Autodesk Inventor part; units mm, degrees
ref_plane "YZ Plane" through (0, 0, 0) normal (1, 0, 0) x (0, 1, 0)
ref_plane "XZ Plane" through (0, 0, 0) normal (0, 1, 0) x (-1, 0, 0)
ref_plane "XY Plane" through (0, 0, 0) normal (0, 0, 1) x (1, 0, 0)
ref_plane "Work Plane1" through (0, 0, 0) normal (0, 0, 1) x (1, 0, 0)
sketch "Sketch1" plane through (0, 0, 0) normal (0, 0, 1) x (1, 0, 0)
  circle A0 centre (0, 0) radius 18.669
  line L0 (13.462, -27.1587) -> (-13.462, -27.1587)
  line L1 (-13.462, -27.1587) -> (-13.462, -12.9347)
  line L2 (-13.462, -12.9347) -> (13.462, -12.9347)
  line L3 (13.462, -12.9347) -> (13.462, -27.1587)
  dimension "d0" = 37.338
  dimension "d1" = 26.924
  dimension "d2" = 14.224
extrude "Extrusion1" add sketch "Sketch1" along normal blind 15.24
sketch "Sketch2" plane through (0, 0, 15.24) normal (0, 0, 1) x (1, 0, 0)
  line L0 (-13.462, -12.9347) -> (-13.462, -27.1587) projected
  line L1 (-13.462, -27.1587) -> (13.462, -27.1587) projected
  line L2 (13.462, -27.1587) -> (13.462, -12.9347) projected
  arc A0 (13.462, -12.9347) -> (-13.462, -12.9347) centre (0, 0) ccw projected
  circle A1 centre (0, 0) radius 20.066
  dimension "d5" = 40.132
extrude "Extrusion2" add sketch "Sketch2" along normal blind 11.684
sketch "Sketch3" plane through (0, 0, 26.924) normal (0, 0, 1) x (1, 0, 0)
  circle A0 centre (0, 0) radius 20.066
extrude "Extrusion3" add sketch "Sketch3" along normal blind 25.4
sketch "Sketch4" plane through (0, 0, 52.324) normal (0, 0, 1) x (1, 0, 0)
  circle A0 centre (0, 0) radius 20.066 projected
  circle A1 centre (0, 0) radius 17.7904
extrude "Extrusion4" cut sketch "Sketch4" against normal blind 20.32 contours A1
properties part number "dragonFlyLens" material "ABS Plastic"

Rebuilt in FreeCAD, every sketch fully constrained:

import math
import FreeCAD as App
import Part
import Sketcher
Q = App.Units.Quantity

doc = App.newDocument("Part")
body = doc.addObject("PartDesign::Body", "Body")

# Sketch on XY plane
sketch1 = body.newObject("Sketcher::SketchObject", "Sketch")
sketch1.AttachmentSupport = (doc.getObject("XY_Plane"), [""])
sketch1.MapMode = "FlatFace"
sketch1.addGeometry(Part.ArcOfCircle(Part.Circle(App.Vector(0, 0, 0), App.Vector(0, 0, 1), 19), math.radians(-44), math.radians(224)), False)
sketch1.addGeometry(Part.LineSegment(App.Vector(-13, -13, 0), App.Vector(-13, -27, 0)), False)
sketch1.addGeometry(Part.LineSegment(App.Vector(-13, -27, 0), App.Vector(13, -27, 0)), False)
sketch1.addGeometry(Part.LineSegment(App.Vector(13, -27, 0), App.Vector(13, -13, 0)), False)
sketch1.addConstraint(Sketcher.Constraint("Coincident", 0, 2, 1, 1))
sketch1.addConstraint(Sketcher.Constraint("Coincident", 1, 2, 2, 1))
sketch1.addConstraint(Sketcher.Constraint("Coincident", 2, 2, 3, 1))
sketch1.addConstraint(Sketcher.Constraint("Coincident", 3, 2, 0, 1))
sketch1.addConstraint(Sketcher.Constraint("Vertical", 1))
sketch1.addConstraint(Sketcher.Constraint("Horizontal", 2))
sketch1.addConstraint(Sketcher.Constraint("Vertical", 3))
sketch1.addConstraint(Sketcher.Constraint("Coincident", 0, 3, -1, 1))
sketch1.addConstraint(Sketcher.Constraint("Horizontal", 0, 2, 3, 2))
sketch1.addConstraint(Sketcher.Constraint("Radius", 0, Q("0.735 in")))
sketch1.addConstraint(Sketcher.Constraint("DistanceX", 2, 1, 2, 2, Q("1.06 in")))
sketch1.addConstraint(Sketcher.Constraint("DistanceY", 1, 2, 1, 1, Q("0.56 in")))
pad1 = body.newObject("PartDesign::Pad", "Pad")
pad1.Profile = sketch1
pad1.Length = Q("0.6 in")

# Sketch on XY plane
sketch2 = body.newObject("Sketcher::SketchObject", "Sketch001")
sketch2.AttachmentSupport = (doc.getObject("XY_Plane"), [""])
sketch2.MapMode = "FlatFace"
sketch2.AttachmentOffset = App.Placement(App.Vector(0, 0, 0.6 * 25.4), App.Rotation())
sketch2.addGeometry(Part.ArcOfCircle(Part.Circle(App.Vector(0, 0, 0), App.Vector(0, 0, 1), 20), math.radians(-48), math.radians(228)), False)
sketch2.addGeometry(Part.LineSegment(App.Vector(-13, -15, 0), App.Vector(-13, -27, 0)), False)
sketch2.addGeometry(Part.LineSegment(App.Vector(-13, -27, 0), App.Vector(13, -27, 0)), False)
sketch2.addGeometry(Part.LineSegment(App.Vector(13, -27, 0), App.Vector(13, -15, 0)), False)
sketch2.addConstraint(Sketcher.Constraint("Coincident", 0, 2, 1, 1))
sketch2.addConstraint(Sketcher.Constraint("Coincident", 1, 2, 2, 1))
sketch2.addConstraint(Sketcher.Constraint("Coincident", 2, 2, 3, 1))
sketch2.addConstraint(Sketcher.Constraint("Coincident", 3, 2, 0, 1))
sketch2.addConstraint(Sketcher.Constraint("Vertical", 1))
sketch2.addConstraint(Sketcher.Constraint("Horizontal", 2))
sketch2.addConstraint(Sketcher.Constraint("Vertical", 3))
sketch2.addConstraint(Sketcher.Constraint("Coincident", 0, 3, -1, 1))
sketch2.addConstraint(Sketcher.Constraint("Horizontal", 0, 2, 3, 2))
sketch2.addConstraint(Sketcher.Constraint("Radius", 0, Q("0.79 in")))
sketch2.addConstraint(Sketcher.Constraint("DistanceX", 2, 1, 2, 2, Q("1.06 in")))
sketch2.addConstraint(Sketcher.Constraint("DistanceY", 1, 2, 1, 1, Q("0.4834 in")))
pad2 = body.newObject("PartDesign::Pad", "Pad001")
pad2.Profile = sketch2
pad2.Length = Q("0.46 in")

# Sketch on XY plane
sketch3 = body.newObject("Sketcher::SketchObject", "Sketch002")
sketch3.AttachmentSupport = (doc.getObject("XY_Plane"), [""])
sketch3.MapMode = "FlatFace"
sketch3.AttachmentOffset = App.Placement(App.Vector(0, 0, 1.06 * 25.4), App.Rotation())
sketch3.addGeometry(Part.Circle(App.Vector(0, 0, 0), App.Vector(0, 0, 1), 20), False)
sketch3.addConstraint(Sketcher.Constraint("Coincident", 0, 3, -1, 1))
sketch3.addConstraint(Sketcher.Constraint("Diameter", 0, Q("1.58 in")))
pad3 = body.newObject("PartDesign::Pad", "Pad002")
pad3.Profile = sketch3
pad3.Length = Q("1 in")

# Sketch on XY plane
sketch4 = body.newObject("Sketcher::SketchObject", "Sketch003")
sketch4.AttachmentSupport = (doc.getObject("XY_Plane"), [""])
sketch4.MapMode = "FlatFace"
sketch4.AttachmentOffset = App.Placement(App.Vector(0, 0, 2.06 * 25.4), App.Rotation())
sketch4.addGeometry(Part.Circle(App.Vector(0, 0, 0), App.Vector(0, 0, 1), 18), False)
sketch4.addConstraint(Sketcher.Constraint("Coincident", 0, 3, -1, 1))
sketch4.addConstraint(Sketcher.Constraint("Diameter", 0, 35.5808))
pocket1 = body.newObject("PartDesign::Pocket", "Pocket")
pocket1.Profile = sketch4
pocket1.Length = Q("0.8 in")

doc.recompute()
